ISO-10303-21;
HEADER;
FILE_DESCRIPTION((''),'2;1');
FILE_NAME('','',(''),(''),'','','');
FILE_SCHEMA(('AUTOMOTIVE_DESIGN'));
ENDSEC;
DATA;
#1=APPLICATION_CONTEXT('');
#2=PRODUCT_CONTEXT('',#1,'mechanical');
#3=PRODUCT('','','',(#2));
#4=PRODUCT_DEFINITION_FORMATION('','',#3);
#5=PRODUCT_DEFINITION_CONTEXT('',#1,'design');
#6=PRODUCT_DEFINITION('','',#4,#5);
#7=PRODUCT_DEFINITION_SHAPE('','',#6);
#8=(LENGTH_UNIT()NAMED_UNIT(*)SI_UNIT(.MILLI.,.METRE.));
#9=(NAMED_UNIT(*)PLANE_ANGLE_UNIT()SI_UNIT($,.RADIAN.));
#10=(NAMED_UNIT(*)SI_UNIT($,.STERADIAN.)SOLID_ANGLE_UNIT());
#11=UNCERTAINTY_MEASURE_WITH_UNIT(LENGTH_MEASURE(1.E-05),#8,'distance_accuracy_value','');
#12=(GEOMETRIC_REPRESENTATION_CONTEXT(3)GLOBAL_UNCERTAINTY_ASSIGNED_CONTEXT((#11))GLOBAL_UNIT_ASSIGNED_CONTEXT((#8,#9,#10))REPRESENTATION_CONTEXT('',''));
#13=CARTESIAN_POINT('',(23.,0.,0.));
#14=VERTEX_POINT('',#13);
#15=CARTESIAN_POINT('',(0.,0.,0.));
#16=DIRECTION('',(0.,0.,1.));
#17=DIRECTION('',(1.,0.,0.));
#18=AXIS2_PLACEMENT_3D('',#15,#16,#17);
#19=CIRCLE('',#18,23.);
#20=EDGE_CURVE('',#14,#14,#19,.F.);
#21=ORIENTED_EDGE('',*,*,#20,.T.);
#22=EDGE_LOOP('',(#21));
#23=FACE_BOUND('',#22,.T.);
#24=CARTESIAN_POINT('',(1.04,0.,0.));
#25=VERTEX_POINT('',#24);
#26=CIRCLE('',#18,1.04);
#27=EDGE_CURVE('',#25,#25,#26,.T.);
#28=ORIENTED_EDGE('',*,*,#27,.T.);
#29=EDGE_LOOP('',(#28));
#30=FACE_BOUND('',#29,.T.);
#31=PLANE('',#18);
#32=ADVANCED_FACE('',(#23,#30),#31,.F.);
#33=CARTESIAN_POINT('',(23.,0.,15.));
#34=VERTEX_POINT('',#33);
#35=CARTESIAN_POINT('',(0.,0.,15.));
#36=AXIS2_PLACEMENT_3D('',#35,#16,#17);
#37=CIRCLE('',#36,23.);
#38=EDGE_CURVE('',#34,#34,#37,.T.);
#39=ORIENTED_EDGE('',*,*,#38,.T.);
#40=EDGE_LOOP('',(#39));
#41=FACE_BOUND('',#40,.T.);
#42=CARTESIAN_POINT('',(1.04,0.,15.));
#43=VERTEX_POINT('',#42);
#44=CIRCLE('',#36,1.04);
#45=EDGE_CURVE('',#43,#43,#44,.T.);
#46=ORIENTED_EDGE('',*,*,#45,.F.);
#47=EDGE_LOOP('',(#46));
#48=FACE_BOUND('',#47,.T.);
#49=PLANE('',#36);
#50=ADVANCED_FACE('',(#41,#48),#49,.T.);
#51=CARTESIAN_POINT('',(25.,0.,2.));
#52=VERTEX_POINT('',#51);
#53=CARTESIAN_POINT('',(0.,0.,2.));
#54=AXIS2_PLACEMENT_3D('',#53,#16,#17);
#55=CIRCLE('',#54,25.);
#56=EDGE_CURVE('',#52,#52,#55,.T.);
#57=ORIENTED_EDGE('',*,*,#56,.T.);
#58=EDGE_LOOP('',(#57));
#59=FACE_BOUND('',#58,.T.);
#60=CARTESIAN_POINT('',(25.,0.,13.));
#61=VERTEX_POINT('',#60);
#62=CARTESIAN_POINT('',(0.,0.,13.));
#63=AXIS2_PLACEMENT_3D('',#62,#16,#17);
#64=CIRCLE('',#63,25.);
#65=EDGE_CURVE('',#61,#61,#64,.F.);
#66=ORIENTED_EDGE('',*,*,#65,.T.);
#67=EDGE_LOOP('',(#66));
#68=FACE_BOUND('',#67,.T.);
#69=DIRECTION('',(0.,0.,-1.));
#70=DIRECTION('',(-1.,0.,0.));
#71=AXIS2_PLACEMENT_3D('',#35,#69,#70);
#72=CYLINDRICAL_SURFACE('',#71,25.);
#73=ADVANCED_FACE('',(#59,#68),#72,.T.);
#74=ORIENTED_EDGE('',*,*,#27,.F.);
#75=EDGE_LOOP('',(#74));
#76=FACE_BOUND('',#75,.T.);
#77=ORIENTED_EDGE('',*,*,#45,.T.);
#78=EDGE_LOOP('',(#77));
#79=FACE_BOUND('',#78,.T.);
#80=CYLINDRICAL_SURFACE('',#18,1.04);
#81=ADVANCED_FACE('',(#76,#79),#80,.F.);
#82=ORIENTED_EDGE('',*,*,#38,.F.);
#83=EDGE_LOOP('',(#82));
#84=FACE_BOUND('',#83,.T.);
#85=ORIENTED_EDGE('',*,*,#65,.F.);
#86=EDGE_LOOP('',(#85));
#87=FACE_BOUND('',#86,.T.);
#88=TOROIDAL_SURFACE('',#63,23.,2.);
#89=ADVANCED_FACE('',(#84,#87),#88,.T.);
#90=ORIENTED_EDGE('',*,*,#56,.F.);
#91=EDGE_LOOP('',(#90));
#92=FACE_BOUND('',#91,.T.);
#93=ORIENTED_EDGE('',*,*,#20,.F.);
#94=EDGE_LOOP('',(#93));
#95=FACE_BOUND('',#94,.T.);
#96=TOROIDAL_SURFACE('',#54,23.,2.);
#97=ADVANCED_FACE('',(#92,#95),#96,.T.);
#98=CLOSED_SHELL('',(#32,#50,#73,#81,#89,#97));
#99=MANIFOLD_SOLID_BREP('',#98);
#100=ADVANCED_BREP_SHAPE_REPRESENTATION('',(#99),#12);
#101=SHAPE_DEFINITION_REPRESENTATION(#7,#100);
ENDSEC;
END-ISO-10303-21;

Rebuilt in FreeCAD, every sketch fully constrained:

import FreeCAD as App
import Part
import Sketcher
from FreeCAD import Vector


def edges_at(feature, points):
    """Names of the edges that pass closest to the given points."""
    edges = feature.Shape.Edges
    near = lambda p: min(range(len(edges)), key=lambda i: edges[i].distToShape(Part.Vertex(*p))[0])
    return sorted({f"Edge{near(p) + 1}" for p in points})

doc = App.newDocument("Part")
params = doc.addObject("Spreadsheet::Sheet", "Params")
for row, (alias, value) in enumerate([
    ("sketch1_diameter", "50 mm"),
    ("pad1_length", "15 mm"),
    ("fillet_radius", "2 mm"),
    ("sketch2_diameter", "2.08 mm"),
], start=1):
    params.set(f"A{row}", alias)
    params.set(f"B{row}", "=" + value)
    params.setAlias(f"B{row}", alias)

body = doc.addObject("PartDesign::Body", "Body")

# Sketch on XY plane
sketch1 = body.newObject("Sketcher::SketchObject", "Sketch")
sketch1.AttachmentSupport = (doc.getObject("XY_Plane"), [""])
sketch1.MapMode = "FlatFace"
sketch1.addGeometry(Part.Circle(Vector(0, 0, 0), Vector(0, 0, 1), 25), False)
sketch1.addConstraint([
    Sketcher.Constraint("Coincident", 0, 3, -1, 1),
    Sketcher.Constraint("Diameter", 0, 50.0),
])
sketch1.setExpression("Constraints[1]", "Params.sketch1_diameter")
pad1 = body.newObject("PartDesign::Pad", "Pad")
pad1.Profile = sketch1
pad1.setExpression("Length", "Params.pad1_length")
doc.recompute()

fillet = body.newObject("PartDesign::Fillet", "Fillet")
fillet.Base = (pad1, edges_at(pad1, [(-25, 0, 0), (-25, 0, 15)]))
fillet.setExpression("Radius", "Params.fillet_radius")

# Sketch on XY plane
sketch2 = body.newObject("Sketcher::SketchObject", "Sketch001")
sketch2.AttachmentSupport = (doc.getObject("XY_Plane"), [""])
sketch2.MapMode = "FlatFace"
sketch2.AttachmentOffset = App.Placement(Vector(0, 0, 15), App.Rotation())
sketch2.addGeometry(Part.Circle(Vector(0, 0, 0), Vector(0, 0, 1), 1), False)
sketch2.addConstraint([
    Sketcher.Constraint("Coincident", 0, 3, -1, 1),
    Sketcher.Constraint("Diameter", 0, 2.08),
])
sketch2.setExpression("Constraints[1]", "Params.sketch2_diameter")
pocket1 = body.newObject("PartDesign::Pocket", "Pocket")
pocket1.Profile = sketch2
pocket1.Type = "ThroughAll"

doc.recompute()
